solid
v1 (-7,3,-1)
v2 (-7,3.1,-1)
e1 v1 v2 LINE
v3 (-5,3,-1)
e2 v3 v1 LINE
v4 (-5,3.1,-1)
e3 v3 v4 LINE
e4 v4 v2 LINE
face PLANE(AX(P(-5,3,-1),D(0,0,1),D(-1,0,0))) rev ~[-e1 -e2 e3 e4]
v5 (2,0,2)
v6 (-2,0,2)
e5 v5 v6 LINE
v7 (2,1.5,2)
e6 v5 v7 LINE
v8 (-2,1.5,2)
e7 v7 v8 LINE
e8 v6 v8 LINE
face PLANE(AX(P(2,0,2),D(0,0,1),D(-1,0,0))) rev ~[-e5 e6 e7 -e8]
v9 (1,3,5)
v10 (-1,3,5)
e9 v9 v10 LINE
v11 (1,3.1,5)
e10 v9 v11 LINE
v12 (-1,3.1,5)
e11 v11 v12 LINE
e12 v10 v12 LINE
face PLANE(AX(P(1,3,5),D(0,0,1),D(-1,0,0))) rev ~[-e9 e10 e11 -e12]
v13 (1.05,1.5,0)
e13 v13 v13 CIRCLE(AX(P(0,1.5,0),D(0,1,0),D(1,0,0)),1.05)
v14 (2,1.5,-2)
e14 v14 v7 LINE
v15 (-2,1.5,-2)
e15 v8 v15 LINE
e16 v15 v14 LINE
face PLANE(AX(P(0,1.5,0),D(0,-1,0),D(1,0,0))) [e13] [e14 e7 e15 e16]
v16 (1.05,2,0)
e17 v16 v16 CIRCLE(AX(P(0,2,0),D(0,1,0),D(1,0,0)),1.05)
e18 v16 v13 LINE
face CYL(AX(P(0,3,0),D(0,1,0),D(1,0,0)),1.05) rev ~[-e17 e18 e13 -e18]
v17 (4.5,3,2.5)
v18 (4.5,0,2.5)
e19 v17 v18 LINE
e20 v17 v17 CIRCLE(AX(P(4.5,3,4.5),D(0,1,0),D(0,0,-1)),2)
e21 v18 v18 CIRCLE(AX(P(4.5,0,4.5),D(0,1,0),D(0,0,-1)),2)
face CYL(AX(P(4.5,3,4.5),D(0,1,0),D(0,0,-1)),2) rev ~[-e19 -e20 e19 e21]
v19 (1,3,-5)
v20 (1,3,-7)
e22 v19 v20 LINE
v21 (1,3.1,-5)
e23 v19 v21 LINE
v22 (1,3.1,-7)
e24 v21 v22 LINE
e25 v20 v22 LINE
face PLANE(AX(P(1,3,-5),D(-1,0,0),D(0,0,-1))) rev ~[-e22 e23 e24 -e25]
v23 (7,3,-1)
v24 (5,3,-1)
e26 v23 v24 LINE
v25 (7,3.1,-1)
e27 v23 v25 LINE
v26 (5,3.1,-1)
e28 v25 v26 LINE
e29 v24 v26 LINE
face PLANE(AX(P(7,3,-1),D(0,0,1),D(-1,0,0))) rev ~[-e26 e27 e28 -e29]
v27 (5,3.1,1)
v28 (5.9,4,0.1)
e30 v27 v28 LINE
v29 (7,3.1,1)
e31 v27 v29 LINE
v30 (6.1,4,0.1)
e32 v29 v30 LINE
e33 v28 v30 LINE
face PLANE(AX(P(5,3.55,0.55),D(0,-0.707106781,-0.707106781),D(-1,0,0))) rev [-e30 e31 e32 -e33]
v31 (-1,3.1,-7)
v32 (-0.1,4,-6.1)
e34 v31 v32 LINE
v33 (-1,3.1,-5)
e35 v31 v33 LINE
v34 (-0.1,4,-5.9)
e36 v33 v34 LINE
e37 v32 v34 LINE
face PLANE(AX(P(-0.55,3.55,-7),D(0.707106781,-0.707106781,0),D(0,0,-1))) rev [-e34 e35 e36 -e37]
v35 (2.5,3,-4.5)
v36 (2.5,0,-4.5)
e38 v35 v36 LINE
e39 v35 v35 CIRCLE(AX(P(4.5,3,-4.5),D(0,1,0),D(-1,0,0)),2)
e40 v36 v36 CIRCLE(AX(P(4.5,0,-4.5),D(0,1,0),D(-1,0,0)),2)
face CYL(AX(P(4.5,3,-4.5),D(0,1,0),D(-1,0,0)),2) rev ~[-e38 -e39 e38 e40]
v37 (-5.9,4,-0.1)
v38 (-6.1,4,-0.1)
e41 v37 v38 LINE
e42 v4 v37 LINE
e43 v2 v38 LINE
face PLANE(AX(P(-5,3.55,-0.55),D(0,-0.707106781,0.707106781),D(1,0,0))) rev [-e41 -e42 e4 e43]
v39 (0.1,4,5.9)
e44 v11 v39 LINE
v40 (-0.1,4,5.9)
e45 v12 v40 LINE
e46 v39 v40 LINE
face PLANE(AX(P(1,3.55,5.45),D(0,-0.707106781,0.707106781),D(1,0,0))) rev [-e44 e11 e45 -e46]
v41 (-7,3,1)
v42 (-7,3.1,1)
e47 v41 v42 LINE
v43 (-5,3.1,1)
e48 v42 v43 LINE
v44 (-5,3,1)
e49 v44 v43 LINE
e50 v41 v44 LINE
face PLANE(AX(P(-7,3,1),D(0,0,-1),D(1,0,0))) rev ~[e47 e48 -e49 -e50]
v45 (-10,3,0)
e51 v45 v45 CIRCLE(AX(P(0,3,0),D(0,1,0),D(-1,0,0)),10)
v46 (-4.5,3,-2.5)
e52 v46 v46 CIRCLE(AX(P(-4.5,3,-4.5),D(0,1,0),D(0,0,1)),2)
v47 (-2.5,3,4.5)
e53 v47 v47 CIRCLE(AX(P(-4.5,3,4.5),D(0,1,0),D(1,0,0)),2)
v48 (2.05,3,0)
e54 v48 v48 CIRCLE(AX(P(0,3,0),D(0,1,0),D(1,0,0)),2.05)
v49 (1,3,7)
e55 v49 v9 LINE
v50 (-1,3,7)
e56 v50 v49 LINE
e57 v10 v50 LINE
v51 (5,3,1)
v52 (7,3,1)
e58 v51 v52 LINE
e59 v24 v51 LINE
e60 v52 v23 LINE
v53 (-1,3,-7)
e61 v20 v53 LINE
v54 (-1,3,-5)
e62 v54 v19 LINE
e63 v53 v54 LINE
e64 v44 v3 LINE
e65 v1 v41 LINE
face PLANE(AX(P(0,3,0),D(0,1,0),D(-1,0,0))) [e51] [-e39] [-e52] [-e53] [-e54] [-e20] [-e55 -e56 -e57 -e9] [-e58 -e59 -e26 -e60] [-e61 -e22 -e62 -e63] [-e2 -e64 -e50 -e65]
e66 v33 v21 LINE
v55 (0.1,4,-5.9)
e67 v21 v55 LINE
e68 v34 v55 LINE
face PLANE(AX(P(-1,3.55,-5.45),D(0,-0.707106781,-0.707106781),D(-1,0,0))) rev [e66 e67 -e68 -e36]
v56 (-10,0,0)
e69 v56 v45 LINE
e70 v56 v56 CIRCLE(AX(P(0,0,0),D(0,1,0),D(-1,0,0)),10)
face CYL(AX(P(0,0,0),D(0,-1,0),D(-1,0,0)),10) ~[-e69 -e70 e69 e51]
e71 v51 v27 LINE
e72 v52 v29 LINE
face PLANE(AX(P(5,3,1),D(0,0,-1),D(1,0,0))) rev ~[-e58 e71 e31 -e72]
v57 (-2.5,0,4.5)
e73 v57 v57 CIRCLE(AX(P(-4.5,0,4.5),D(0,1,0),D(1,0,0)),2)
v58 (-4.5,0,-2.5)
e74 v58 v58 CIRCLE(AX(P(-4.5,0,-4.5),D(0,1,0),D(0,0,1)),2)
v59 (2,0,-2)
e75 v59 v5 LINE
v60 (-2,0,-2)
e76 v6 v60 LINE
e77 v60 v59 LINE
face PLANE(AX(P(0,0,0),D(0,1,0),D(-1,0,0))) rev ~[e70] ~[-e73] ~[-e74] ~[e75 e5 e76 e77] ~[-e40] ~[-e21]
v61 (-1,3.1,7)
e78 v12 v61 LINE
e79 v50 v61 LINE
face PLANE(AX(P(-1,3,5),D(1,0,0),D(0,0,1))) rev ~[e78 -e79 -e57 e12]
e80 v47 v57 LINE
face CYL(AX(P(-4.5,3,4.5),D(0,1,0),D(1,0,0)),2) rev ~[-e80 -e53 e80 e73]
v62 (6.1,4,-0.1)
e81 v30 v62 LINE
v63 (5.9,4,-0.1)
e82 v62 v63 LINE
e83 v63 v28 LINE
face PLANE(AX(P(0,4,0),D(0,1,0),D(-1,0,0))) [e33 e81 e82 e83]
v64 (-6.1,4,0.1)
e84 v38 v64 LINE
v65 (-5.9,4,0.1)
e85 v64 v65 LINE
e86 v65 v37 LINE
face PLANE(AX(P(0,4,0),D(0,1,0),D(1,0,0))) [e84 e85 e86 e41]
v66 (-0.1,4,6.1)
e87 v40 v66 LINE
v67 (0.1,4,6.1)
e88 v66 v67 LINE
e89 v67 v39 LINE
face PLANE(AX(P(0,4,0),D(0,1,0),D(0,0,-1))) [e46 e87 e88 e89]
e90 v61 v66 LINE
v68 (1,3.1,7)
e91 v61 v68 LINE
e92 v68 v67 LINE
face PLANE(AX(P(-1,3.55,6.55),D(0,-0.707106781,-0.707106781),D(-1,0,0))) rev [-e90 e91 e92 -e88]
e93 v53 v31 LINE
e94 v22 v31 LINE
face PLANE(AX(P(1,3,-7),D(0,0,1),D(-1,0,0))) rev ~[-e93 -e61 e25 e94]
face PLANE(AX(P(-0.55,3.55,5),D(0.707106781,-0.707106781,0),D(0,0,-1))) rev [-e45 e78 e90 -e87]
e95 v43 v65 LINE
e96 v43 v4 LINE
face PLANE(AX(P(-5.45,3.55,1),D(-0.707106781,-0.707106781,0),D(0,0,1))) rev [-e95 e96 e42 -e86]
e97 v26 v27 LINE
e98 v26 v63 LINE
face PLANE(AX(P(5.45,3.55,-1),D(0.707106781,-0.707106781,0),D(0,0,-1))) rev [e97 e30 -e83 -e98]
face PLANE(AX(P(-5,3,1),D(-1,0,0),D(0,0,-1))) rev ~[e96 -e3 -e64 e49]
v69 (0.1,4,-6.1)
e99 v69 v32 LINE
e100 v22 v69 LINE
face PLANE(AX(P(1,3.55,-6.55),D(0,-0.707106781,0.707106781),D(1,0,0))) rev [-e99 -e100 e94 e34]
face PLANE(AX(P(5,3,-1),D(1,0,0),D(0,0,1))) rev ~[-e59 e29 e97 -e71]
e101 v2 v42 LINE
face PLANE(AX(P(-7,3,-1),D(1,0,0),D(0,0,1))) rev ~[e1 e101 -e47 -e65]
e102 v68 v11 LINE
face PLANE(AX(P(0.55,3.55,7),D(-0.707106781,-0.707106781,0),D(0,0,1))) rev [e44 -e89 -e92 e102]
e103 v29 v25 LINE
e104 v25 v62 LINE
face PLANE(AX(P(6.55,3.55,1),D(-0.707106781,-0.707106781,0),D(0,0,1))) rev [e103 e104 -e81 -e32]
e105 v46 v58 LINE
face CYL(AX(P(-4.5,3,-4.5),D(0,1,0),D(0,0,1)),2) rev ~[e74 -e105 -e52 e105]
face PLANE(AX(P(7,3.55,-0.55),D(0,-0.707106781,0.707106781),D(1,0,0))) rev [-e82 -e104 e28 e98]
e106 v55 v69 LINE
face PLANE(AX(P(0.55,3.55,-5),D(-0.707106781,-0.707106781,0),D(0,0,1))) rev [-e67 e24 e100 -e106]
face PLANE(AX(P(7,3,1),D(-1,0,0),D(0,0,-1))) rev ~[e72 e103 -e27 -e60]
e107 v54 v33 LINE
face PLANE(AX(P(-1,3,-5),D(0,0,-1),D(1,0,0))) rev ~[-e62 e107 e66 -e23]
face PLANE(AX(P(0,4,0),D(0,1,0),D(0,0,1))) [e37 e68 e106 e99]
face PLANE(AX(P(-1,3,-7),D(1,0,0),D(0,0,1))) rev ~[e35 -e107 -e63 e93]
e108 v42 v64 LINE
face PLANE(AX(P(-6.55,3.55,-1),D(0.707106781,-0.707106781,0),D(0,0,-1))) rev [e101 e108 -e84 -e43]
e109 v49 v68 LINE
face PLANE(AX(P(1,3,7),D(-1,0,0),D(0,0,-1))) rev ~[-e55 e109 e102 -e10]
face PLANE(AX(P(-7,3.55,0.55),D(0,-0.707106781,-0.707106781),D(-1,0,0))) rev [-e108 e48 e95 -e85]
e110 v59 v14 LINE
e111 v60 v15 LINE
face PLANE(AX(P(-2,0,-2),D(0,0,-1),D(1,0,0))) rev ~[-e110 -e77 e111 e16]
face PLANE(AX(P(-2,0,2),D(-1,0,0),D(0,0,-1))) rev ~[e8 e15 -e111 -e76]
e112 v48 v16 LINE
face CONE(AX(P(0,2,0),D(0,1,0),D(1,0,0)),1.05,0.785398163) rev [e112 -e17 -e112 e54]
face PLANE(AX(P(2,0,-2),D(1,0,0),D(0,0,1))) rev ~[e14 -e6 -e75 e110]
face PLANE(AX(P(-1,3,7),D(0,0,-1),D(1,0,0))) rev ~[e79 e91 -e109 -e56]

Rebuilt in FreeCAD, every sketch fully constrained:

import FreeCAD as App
import Part
import Sketcher
from FreeCAD import Vector


def edges_at(feature, points):
    """Names of the edges that pass closest to the given points."""
    edges = feature.Shape.Edges
    near = lambda p: min(range(len(edges)), key=lambda i: edges[i].distToShape(Part.Vertex(*p))[0])
    return sorted({f"Edge{near(p) + 1}" for p in points})


def add_polygon(sketch, points):
    """Adds a closed chain of lines whose ends are joined by coincident constraints."""
    first, n = sketch.GeometryCount, len(points)
    for a, b in zip(points, points[1:] + points[:1]):
        sketch.addGeometry(Part.LineSegment(App.Vector(*a, 0), App.Vector(*b, 0)), False)
    for i in range(n):
        sketch.addConstraint(Sketcher.Constraint("Coincident", first + i, 2, first + (i + 1) % n, 1))

doc = App.newDocument("Part")
body = doc.addObject("PartDesign::Body", "Body")

# Sketch on XZ plane
sketch1 = doc.addObject("Sketcher::SketchObject", "Sketch")
body.addObject(sketch1)
sketch1.AttachmentSupport = (doc.XZ_Plane, [""])
sketch1.MapMode = "FlatFace"
sketch1.addGeometry(Part.Circle(Vector(0, 0, 0), Vector(0, 0, 1), 10), False)
sketch1.addConstraint(Sketcher.Constraint("Coincident", 0, 3, -1, 1))
sketch1.addConstraint(Sketcher.Constraint("Diameter", 0, 20.0))
pad1 = doc.addObject("PartDesign::Pad", "Pad")
body.addObject(pad1)
pad1.Profile = sketch1
pad1.Length = 3
pad1.Reversed = True

# Sketch on XZ plane
sketch2 = doc.addObject("Sketcher::SketchObject", "Sketch001")
body.addObject(sketch2)
sketch2.AttachmentSupport = (doc.XZ_Plane, [""])
sketch2.MapMode = "FlatFace"
sketch2.AttachmentOffset = App.Placement(Vector(0, 0, -3), App.Rotation())
add_polygon(sketch2, [(-7, -1), (-7, 1), (-5, 1), (-5, -1)])  # lines 0-3
sketch2.addConstraint(Sketcher.Constraint("Vertical", 0))
sketch2.addConstraint(Sketcher.Constraint("Horizontal", 1))
sketch2.addConstraint(Sketcher.Constraint("Vertical", 2))
sketch2.addConstraint(Sketcher.Constraint("Horizontal", 3))
sketch2.addConstraint(Sketcher.Constraint("Equal", 3, 0))
sketch2.addConstraint(Sketcher.Constraint("DistanceX", 1, 1, 1, 2, 2.0))
sketch2.addConstraint(Sketcher.Constraint("DistanceY", -1, 1, 0, 2, 1.0))
sketch2.addConstraint(Sketcher.Constraint("DistanceX", 1, 2, -1, 1, 5.0))
pad2 = doc.addObject("PartDesign::Pad", "Pad001")
body.addObject(pad2)
pad2.Profile = sketch2
pad2.Length = 1
pad2.Reversed = True
doc.recompute()

polarpattern = doc.addObject("PartDesign::PolarPattern", "PolarPattern")
body.addObject(polarpattern)
polarpattern.Originals = [pad2]
polarpattern.Axis = (doc.Y_Axis, [""])
polarpattern.Angle = 360
polarpattern.Occurrences = 4
body.Tip = polarpattern
doc.recompute()

chamfer = doc.addObject("PartDesign::Chamfer", "Chamfer")
body.addObject(chamfer)
chamfer.Base = (polarpattern, edges_at(polarpattern, [
    (-6, 4, 1),
    (-5, 4, 0),
    (-6, 4, -1),
    (-7, 4, 0),
    (0, 4, -5),
    (-1, 4, -6),
    (0, 4, -7),
    (1, 4, -6),
    (6, 4, -1),
    (7, 4, 0),
    (5, 4, 0),
    (6, 4, 1),
    (1, 4, 6),
    (-1, 4, 6),
    (0, 4, 5),
    (0, 4, 7),
]))
chamfer.Size = 0.9

# Sketch on XZ plane
sketch3 = doc.addObject("Sketcher::SketchObject", "Sketch002")
body.addObject(sketch3)
sketch3.AttachmentSupport = (doc.XZ_Plane, [""])
sketch3.MapMode = "FlatFace"
sketch3.AttachmentOffset = App.Placement(Vector(0, 0, -3), App.Rotation())
sketch3.addGeometry(Part.Circle(Vector(-4.5, 4.5, 0), Vector(0, 0, 1), 2), False)
sketch3.addConstraint(Sketcher.Constraint("Diameter", 0, 4.0))
sketch3.addConstraint(Sketcher.Constraint("DistanceX", 0, 3, -1, 1, 4.5))
sketch3.addConstraint(Sketcher.Constraint("DistanceY", -1, 1, 0, 3, 4.5))
pocket1 = doc.addObject("PartDesign::Pocket", "Pocket")
body.addObject(pocket1)
pocket1.Profile = sketch3
pocket1.Type = "ThroughAll"
pocket1.Reversed = True
doc.recompute()

polarpattern2 = doc.addObject("PartDesign::PolarPattern", "PolarPattern001")
body.addObject(polarpattern2)
polarpattern2.Originals = [pocket1]
polarpattern2.Axis = (doc.Y_Axis, [""])
polarpattern2.Angle = 360
polarpattern2.Occurrences = 4
body.Tip = polarpattern2

# Sketch on XZ plane
sketch4 = doc.addObject("Sketcher::SketchObject", "Sketch003")
body.addObject(sketch4)
sketch4.AttachmentSupport = (doc.XZ_Plane, [""])
sketch4.MapMode = "FlatFace"
add_polygon(sketch4, [(-2, 2), (-2, -2), (2, -2), (2, 2)])  # lines 0-3
sketch4.addConstraint(Sketcher.Constraint("Vertical", 0))
sketch4.addConstraint(Sketcher.Constraint("Horizontal", 1))
sketch4.addConstraint(Sketcher.Constraint("Vertical", 2))
sketch4.addConstraint(Sketcher.Constraint("Horizontal", 3))
sketch4.addConstraint(Sketcher.Constraint("Symmetric", 0, 2, 2, 2, -1, 1))
sketch4.addConstraint(Sketcher.Constraint("Equal", 3, 0))
sketch4.addConstraint(Sketcher.Constraint("DistanceX", 1, 1, 1, 2, 4.0))
pocket2 = doc.addObject("PartDesign::Pocket", "Pocket001")
body.addObject(pocket2)
pocket2.Profile = sketch4
pocket2.Length = 1.5

# Sketch on XZ plane
sketch5 = doc.addObject("Sketcher::SketchObject", "Sketch004")
body.addObject(sketch5)
sketch5.AttachmentSupport = (doc.XZ_Plane, [""])
sketch5.MapMode = "FlatFace"
sketch5.AttachmentOffset = App.Placement(Vector(0, 0, -3), App.Rotation())
sketch5.addGeometry(Part.Circle(Vector(0, 0, 0), Vector(0, 0, 1), 1.1), False)
sketch5.addConstraint(Sketcher.Constraint("Coincident", 0, 3, -1, 1))
sketch5.addConstraint(Sketcher.Constraint("Diameter", 0, 2.1))
pocket3 = doc.addObject("PartDesign::Pocket", "Pocket002")
body.addObject(pocket3)
pocket3.Profile = sketch5
pocket3.Type = "ThroughAll"
pocket3.Reversed = True
doc.recompute()

chamfer2 = doc.addObject("PartDesign::Chamfer", "Chamfer001")
body.addObject(chamfer2)
chamfer2.Base = (pocket3, edges_at(pocket3, [(-1.05, 3, 0)]))
chamfer2.Size = 1

doc.recompute()
